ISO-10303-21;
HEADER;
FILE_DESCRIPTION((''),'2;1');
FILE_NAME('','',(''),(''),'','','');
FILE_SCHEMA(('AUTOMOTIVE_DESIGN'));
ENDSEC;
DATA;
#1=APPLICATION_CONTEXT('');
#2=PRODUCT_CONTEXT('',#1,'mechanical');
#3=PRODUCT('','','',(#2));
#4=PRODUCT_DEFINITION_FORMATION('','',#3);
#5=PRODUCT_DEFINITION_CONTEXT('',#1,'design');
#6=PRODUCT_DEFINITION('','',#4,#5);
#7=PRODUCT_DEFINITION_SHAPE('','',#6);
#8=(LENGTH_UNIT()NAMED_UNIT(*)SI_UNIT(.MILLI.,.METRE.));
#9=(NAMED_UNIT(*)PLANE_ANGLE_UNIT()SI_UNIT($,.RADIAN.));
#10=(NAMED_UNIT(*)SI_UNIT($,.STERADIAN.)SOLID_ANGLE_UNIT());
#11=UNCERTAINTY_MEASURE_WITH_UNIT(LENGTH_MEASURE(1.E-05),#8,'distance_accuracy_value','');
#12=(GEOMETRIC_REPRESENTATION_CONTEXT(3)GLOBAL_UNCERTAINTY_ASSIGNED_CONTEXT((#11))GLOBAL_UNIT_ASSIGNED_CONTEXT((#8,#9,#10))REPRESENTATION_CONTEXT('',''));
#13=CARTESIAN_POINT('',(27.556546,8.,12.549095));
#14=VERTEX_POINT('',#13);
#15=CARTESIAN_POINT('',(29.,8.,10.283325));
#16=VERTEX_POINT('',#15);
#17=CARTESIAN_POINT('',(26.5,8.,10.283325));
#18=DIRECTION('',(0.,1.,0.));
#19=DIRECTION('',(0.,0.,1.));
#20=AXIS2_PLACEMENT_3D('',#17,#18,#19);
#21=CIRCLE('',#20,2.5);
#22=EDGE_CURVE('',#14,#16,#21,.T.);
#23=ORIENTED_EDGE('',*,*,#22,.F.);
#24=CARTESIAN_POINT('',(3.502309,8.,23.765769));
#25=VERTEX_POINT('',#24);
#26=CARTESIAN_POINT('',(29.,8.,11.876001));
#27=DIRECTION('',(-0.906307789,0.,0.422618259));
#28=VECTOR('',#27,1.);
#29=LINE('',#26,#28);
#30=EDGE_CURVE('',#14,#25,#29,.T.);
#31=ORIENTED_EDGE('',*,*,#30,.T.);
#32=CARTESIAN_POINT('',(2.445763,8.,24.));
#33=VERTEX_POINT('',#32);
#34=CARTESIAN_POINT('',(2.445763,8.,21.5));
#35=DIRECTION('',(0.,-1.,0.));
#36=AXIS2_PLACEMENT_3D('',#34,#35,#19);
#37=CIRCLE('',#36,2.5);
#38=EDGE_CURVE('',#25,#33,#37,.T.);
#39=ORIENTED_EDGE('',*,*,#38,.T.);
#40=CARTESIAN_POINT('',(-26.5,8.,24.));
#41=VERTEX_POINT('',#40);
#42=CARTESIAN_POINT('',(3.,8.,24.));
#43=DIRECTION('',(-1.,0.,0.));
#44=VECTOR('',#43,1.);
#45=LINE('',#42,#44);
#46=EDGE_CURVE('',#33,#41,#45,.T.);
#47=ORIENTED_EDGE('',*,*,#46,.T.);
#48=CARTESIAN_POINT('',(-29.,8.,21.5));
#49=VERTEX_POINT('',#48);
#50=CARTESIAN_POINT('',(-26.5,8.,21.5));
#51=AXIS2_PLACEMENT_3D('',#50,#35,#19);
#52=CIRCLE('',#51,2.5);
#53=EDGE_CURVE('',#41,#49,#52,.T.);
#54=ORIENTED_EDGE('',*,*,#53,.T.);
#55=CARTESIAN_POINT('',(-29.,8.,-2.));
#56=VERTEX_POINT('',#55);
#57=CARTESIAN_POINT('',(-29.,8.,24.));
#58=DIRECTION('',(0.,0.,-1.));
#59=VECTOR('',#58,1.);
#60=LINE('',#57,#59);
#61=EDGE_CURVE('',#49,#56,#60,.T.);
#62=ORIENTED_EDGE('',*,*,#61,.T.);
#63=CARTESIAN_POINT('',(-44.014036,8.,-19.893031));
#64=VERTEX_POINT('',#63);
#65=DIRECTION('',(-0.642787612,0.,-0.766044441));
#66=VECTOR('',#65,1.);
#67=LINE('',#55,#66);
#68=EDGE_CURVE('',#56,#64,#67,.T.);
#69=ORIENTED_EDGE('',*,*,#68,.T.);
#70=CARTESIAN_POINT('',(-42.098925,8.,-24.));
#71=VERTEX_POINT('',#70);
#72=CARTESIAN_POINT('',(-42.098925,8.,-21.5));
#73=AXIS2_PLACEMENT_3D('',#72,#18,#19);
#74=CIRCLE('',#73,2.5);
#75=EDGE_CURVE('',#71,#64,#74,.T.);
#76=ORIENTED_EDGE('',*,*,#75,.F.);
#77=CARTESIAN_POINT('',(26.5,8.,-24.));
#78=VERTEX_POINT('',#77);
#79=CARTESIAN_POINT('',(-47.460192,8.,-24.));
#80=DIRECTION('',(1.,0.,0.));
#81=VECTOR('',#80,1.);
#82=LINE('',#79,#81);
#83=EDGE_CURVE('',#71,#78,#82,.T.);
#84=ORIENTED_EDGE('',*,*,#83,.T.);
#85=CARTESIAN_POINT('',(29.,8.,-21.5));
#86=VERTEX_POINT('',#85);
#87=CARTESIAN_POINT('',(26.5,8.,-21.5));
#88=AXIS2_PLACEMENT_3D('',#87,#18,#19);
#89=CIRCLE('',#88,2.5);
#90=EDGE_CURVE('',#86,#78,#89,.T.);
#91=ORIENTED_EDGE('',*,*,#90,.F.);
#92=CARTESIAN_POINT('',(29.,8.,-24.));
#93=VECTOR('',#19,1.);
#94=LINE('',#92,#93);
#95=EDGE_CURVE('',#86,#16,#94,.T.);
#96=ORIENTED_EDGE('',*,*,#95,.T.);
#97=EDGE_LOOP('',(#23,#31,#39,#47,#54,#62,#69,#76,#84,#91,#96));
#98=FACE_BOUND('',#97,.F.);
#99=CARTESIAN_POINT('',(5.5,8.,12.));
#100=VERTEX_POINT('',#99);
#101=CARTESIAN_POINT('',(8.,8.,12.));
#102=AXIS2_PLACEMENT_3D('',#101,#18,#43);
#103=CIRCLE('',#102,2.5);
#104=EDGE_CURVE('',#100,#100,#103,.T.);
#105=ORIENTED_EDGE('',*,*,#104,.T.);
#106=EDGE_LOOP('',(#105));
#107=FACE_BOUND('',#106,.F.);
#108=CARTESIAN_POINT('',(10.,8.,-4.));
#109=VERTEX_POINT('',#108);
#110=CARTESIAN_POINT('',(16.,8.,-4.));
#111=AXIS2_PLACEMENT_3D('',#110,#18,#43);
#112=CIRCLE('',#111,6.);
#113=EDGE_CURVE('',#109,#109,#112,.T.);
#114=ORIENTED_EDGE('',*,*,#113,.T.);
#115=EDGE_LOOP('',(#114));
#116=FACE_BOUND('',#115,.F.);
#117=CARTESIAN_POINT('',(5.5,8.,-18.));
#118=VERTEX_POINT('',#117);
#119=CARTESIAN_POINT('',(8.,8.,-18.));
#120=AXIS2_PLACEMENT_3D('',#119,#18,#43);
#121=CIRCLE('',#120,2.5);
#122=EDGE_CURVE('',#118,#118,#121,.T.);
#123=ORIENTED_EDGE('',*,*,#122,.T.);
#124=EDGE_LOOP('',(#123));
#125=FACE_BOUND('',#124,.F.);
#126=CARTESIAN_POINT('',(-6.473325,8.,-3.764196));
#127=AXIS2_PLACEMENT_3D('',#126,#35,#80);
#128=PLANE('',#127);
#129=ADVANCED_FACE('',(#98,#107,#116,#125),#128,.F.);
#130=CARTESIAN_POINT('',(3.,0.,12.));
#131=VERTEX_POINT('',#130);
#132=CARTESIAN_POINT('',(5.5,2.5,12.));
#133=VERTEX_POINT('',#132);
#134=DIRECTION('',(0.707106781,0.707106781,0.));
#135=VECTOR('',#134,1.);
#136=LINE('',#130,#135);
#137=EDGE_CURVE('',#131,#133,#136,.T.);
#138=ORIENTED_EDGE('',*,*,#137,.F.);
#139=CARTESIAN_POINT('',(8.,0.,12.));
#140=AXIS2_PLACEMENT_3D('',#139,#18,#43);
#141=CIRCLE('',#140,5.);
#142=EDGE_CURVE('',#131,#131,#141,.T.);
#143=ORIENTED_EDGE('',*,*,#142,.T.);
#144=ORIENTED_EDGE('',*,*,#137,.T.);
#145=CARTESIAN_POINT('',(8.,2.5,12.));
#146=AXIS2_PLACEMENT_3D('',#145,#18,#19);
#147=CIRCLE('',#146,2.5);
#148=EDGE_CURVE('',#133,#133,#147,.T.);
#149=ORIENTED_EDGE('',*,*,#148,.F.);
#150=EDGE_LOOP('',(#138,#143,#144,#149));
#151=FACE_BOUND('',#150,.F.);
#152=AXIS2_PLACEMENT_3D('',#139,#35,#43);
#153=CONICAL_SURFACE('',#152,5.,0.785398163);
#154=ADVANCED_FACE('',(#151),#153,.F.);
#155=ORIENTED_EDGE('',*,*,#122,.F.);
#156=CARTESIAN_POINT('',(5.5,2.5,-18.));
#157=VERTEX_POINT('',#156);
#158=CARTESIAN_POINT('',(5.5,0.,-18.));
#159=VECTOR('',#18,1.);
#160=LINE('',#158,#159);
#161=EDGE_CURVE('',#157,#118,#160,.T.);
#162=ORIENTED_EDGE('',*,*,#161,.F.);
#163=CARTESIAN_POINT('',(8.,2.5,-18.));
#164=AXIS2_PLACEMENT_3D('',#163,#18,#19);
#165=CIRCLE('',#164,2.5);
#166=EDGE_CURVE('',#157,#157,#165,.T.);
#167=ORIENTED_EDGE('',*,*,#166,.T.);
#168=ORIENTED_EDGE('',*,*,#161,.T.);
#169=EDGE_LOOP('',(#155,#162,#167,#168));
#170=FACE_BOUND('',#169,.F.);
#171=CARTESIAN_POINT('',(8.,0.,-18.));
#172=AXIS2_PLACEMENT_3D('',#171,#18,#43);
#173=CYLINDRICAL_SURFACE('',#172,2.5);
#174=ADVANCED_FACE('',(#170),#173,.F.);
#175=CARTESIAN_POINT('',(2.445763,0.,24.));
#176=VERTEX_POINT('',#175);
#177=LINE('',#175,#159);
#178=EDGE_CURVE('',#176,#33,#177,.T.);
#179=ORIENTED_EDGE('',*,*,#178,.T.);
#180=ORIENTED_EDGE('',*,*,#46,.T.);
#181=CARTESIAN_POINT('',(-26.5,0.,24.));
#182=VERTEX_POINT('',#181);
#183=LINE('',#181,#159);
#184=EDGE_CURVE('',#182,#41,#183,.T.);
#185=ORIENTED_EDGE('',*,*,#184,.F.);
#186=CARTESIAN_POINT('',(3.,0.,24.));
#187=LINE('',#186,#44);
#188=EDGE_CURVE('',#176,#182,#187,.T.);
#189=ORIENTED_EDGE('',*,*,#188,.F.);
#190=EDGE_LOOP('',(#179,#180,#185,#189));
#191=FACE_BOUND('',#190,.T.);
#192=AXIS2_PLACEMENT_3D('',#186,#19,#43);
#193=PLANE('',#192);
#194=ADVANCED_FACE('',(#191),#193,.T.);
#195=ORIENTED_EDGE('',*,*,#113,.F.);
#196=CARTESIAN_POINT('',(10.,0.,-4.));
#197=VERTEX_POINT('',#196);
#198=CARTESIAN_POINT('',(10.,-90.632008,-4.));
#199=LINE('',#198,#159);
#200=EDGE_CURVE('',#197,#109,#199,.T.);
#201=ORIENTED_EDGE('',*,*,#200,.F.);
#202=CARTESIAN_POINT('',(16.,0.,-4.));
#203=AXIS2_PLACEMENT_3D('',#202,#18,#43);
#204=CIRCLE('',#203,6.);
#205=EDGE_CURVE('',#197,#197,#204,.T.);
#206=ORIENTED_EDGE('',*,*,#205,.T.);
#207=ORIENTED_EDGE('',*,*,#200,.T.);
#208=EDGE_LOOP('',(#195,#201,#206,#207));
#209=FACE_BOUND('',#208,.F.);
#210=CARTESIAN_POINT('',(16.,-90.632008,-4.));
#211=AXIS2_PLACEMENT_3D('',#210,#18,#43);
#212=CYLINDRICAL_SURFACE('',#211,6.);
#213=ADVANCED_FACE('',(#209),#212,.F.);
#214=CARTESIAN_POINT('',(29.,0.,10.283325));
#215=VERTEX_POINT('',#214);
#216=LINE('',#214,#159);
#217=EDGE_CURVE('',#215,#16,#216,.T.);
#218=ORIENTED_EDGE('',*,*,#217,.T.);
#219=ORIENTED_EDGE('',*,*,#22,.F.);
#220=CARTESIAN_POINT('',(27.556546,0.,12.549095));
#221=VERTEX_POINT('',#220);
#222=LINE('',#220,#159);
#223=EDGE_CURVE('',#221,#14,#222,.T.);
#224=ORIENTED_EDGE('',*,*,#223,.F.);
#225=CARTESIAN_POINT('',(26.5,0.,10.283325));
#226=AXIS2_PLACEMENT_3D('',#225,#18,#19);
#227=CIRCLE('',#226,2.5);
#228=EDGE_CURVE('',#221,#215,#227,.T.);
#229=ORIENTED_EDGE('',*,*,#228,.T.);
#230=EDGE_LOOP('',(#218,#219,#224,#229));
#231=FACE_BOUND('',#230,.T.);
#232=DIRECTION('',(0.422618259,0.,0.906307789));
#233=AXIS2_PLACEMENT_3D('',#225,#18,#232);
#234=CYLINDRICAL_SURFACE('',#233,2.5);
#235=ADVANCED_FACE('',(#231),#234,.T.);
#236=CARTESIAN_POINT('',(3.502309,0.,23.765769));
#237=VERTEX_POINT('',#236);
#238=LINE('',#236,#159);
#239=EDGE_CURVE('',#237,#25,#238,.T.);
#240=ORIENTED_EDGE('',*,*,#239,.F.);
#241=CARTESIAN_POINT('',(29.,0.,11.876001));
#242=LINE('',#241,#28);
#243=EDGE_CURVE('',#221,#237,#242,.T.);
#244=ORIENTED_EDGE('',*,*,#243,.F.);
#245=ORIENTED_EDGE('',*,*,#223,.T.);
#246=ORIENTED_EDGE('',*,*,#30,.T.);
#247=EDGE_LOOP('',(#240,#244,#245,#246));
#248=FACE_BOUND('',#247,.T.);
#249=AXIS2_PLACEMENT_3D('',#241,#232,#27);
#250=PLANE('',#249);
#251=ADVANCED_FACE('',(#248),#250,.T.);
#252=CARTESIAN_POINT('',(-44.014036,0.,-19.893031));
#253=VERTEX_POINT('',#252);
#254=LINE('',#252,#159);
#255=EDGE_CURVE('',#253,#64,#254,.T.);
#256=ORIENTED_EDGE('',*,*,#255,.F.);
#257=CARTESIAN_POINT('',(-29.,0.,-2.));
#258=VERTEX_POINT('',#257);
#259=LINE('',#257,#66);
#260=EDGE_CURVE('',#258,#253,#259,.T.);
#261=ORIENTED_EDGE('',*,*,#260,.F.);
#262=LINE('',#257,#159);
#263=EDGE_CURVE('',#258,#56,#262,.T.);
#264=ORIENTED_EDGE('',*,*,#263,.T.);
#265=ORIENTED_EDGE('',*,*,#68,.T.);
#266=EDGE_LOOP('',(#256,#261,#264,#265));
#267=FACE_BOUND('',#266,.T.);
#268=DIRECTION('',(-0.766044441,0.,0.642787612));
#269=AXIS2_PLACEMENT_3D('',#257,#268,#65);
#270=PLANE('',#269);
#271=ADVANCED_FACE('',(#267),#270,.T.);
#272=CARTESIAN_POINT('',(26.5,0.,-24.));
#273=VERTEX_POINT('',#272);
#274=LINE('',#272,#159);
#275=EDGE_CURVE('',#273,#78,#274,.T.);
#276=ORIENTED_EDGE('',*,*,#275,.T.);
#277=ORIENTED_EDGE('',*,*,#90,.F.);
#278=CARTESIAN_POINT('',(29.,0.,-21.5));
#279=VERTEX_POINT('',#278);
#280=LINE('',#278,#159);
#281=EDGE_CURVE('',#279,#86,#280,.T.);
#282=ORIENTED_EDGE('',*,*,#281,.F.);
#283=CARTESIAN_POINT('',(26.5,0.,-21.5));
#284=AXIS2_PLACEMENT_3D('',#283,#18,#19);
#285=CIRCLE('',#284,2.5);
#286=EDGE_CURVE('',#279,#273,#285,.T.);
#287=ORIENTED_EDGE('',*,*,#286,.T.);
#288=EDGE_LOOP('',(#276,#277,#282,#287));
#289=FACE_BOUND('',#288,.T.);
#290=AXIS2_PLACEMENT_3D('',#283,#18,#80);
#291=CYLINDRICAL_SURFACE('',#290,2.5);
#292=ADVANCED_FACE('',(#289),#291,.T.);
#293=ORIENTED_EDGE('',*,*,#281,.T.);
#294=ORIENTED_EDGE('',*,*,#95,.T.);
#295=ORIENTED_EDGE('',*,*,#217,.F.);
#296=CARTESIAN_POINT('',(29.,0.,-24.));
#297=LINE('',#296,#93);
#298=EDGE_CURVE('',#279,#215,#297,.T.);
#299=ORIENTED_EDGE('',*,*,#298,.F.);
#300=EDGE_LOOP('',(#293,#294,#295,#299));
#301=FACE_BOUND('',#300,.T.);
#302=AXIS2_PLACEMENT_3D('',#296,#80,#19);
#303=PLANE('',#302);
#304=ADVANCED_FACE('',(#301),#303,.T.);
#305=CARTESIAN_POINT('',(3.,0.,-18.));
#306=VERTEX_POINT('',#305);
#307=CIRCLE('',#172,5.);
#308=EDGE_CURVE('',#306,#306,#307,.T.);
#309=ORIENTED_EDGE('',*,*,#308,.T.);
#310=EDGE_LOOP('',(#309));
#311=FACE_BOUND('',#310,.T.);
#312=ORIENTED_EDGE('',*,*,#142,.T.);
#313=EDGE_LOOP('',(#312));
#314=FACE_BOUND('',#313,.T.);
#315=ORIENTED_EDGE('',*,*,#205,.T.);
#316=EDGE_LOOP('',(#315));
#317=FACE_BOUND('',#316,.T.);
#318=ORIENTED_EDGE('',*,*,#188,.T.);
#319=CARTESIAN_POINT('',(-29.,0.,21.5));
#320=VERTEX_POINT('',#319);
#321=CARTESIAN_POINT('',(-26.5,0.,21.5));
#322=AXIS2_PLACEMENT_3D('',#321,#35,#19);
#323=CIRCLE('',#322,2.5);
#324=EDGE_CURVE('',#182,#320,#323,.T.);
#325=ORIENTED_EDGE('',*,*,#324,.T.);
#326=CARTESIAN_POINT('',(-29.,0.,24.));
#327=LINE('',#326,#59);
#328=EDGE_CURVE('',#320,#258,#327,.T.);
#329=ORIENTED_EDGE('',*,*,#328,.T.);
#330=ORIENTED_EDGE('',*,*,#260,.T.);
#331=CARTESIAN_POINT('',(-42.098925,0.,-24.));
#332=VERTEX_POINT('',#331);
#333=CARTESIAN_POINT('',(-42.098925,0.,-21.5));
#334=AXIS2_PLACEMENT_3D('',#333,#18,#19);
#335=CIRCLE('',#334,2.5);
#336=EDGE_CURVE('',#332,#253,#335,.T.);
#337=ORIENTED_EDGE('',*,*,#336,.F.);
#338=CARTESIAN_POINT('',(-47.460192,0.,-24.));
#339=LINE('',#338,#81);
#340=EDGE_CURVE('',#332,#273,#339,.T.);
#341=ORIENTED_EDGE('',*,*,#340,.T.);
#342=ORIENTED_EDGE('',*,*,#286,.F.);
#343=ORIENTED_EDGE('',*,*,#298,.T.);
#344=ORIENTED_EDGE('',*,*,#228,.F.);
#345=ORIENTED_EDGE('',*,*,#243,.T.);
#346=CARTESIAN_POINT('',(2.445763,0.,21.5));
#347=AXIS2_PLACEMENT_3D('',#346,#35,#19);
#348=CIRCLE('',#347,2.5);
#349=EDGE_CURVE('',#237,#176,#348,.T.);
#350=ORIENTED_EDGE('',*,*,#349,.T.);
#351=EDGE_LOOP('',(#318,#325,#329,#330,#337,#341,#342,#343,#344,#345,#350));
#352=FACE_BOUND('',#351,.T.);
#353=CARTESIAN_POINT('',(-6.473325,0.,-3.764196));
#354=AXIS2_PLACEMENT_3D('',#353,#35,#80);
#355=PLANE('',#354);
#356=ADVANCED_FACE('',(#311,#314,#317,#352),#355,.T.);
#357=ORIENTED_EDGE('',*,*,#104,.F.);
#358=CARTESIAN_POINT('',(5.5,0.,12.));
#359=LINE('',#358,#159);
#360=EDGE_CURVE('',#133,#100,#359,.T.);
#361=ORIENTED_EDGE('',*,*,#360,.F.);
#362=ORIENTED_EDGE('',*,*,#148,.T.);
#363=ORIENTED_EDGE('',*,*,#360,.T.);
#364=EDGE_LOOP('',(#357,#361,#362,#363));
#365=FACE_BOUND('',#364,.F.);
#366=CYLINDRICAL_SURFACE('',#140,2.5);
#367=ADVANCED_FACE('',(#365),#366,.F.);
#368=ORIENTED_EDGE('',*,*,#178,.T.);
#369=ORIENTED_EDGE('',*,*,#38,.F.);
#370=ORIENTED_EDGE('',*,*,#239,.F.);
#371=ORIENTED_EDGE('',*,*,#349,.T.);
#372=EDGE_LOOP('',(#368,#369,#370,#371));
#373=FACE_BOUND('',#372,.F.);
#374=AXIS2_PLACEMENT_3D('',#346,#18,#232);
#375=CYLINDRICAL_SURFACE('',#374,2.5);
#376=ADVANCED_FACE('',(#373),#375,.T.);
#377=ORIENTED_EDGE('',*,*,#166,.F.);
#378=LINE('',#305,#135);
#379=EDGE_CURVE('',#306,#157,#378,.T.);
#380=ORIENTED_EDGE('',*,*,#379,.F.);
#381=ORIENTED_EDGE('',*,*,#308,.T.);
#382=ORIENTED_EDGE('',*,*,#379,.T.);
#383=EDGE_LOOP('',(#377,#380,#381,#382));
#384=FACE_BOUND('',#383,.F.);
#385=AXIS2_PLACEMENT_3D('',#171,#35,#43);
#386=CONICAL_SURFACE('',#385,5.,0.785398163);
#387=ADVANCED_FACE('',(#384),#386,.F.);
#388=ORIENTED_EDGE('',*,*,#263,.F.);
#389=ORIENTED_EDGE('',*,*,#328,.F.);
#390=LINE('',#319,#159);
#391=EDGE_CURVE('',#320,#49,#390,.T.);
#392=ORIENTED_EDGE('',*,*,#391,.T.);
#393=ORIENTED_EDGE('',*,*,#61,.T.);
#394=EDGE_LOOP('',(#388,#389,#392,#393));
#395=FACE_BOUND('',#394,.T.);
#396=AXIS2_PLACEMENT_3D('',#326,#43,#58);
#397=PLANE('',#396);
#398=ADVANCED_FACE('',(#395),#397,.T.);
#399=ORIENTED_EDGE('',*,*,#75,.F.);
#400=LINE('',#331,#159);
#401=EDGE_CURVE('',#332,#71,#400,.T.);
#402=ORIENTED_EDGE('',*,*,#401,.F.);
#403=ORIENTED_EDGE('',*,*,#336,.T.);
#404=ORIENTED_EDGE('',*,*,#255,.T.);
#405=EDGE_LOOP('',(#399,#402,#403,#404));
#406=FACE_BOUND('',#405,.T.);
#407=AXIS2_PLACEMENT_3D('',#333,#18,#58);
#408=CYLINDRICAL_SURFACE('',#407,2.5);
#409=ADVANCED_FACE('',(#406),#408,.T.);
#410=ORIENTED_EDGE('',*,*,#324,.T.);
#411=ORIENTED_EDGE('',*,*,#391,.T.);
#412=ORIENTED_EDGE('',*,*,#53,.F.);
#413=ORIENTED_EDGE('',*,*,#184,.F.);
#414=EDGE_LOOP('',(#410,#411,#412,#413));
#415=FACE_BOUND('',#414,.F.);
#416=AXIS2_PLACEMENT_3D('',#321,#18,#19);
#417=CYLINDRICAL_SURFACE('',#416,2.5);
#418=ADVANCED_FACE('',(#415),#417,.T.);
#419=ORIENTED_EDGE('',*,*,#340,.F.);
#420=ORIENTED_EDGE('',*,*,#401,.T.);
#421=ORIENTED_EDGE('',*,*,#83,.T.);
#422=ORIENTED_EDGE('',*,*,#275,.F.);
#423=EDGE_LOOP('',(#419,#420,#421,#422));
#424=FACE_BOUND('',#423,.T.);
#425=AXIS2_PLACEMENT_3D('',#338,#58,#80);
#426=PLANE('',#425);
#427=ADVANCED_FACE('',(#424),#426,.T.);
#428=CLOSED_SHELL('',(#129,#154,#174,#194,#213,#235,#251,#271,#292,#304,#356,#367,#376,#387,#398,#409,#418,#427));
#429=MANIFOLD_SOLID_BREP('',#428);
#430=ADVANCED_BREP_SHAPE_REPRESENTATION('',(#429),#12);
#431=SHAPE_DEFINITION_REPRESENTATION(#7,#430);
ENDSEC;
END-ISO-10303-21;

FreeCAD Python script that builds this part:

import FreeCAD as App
import Part
import Sketcher
Q = App.Units.Quantity


def edges_at(feature, points):
    """Names of the edges that pass closest to the given points."""
    edges = feature.Shape.Edges
    near = lambda p: min(range(len(edges)), key=lambda i: edges[i].distToShape(Part.Vertex(*p))[0])
    return sorted({f"Edge{near(p) + 1}" for p in points})


def add_polygon(sketch, points):
    """Adds a closed chain of lines whose ends are joined by coincident constraints."""
    first, n = sketch.GeometryCount, len(points)
    for a, b in zip(points, points[1:] + points[:1]):
        sketch.addGeometry(Part.LineSegment(App.Vector(*a, 0), App.Vector(*b, 0)), False)
    for i in range(n):
        sketch.addConstraint(Sketcher.Constraint("Coincident", first + i, 2, first + (i + 1) % n, 1))

doc = App.newDocument("Part")
params = doc.addObject("Spreadsheet::Sheet", "Params")
for row, (alias, value) in enumerate([
    ("sketch1_width", "32 mm"),
    ("sketch1_height", "26 mm"),
    ("pad1_length", "8 mm"),
    ("sketch2_diameter", "5 mm"),
    ("hole_diameter", "5 mm"),
    ("hole_csink_diameter", "10 mm"),
    ("sketch3_diameter", "12 mm"),
    ("hole2_diameter", "12 mm"),
    ("fillet_radius", "2.5 mm"),
], start=1):
    params.set(f"A{row}", alias)
    params.set(f"B{row}", "=" + value)
    params.setAlias(f"B{row}", alias)

body = doc.addObject("PartDesign::Body", "Body")

sketch1 = doc.addObject("Sketcher::SketchObject", "Sketch")
body.addObject(sketch1)
sketch1.AttachmentSupport = (doc.XZ_Plane, [""])
sketch1.MapMode = "FlatFace"
add_polygon(sketch1, [(29, 12), (3, 24), (-29, 24), (-29, -2), (-47, -24), (29, -24)])
sketch1.addConstraint([
    Sketcher.Constraint("Horizontal", 1),
    Sketcher.Constraint("Vertical", 2),
    Sketcher.Constraint("Horizontal", 4),
    Sketcher.Constraint("Vertical", 5),
    Sketcher.Constraint("Symmetric", 1, 2, 4, 2, -1, 1),
    Sketcher.Constraint("DistanceX", 1, 2, 1, 1, 32.0),
    Sketcher.Constraint("DistanceY", 2, 2, 2, 1, 26.0),
    Sketcher.Constraint("Angle", 0, Q("155 deg")),
    Sketcher.Constraint("Angle", 3, Q("-130 deg")),
    Sketcher.Constraint("DistanceX", -1, 1, 0, 2, 3.0),
    Sketcher.Constraint("DistanceY", -1, 1, 0, 2, 24.0),
])
sketch1.setExpression("Constraints[11]", "Params.sketch1_width")
sketch1.setExpression("Constraints[12]", "Params.sketch1_height")
pad1 = doc.addObject("PartDesign::Pad", "Pad")
body.addObject(pad1)
pad1.Profile = sketch1
pad1.setExpression("Length", "Params.pad1_length")
pad1.Reversed = True

sketch2 = doc.addObject("Sketcher::SketchObject", "Sketch001")
body.addObject(sketch2)
sketch2.AttachmentSupport = (doc.XZ_Plane, [""])
sketch2.MapMode = "FlatFace"
sketch2.addGeometry([
    Part.Circle(App.Vector(8, -18, 0), App.Vector(0, 0, 1), 2.5),
    Part.Circle(App.Vector(8, 12, 0), App.Vector(0, 0, 1), 2.5),
], False)
sketch2.addConstraint([
    Sketcher.Constraint("Equal", 0, 1),
    Sketcher.Constraint("Vertical", 0, 3, 1, 3),
    Sketcher.Constraint("Diameter", 0, 5.0),
    Sketcher.Constraint("DistanceX", -1, 1, 0, 3, 8.0),
    Sketcher.Constraint("DistanceY", 0, 3, -1, 1, 18.0),
    Sketcher.Constraint("DistanceY", -1, 1, 1, 3, 12.0),
])
sketch2.setExpression("Constraints[2]", "Params.sketch2_diameter")
doc.recompute()
hole = doc.addObject("PartDesign::Hole", "Hole")
body.addObject(hole)
hole.Profile = sketch2
hole.ThreadType = "None"
hole.setExpression("Diameter", "Params.hole_diameter")
hole.DepthType = "ThroughAll"
hole.HoleCutType = "Countersink"
hole.setExpression("HoleCutDiameter", "Params.hole_csink_diameter")
hole.HoleCutCountersinkAngle = 90

sketch3 = doc.addObject("Sketcher::SketchObject", "Sketch002")
body.addObject(sketch3)
sketch3.AttachmentSupport = (doc.XZ_Plane, [""])
sketch3.MapMode = "FlatFace"
sketch3.addGeometry(Part.Circle(App.Vector(16, -4, 0), App.Vector(0, 0, 1), 6), False)
sketch3.addConstraint([
    Sketcher.Constraint("Diameter", 0, 12.0),
    Sketcher.Constraint("DistanceX", -1, 1, 0, 3, 16.0),
    Sketcher.Constraint("DistanceY", 0, 3, -1, 1, 4.0),
])
sketch3.setExpression("Constraints[0]", "Params.sketch3_diameter")
doc.recompute()
hole2 = doc.addObject("PartDesign::Hole", "Hole001")
body.addObject(hole2)
hole2.Profile = sketch3
hole2.ThreadType = "None"
hole2.setExpression("Diameter", "Params.hole2_diameter")
hole2.DepthType = "ThroughAll"
doc.recompute()

fillet = doc.addObject("PartDesign::Fillet", "Fillet")
body.addObject(fillet)
fillet.Base = (hole2, edges_at(hole2, [
    (-47.46, 4, -24),
    (-29, 4, 24),
    (3, 4, 24),
    (29, 4, 11.876),
    (29, 4, -24),
]))
fillet.setExpression("Radius", "Params.fillet_radius")

doc.recompute()
